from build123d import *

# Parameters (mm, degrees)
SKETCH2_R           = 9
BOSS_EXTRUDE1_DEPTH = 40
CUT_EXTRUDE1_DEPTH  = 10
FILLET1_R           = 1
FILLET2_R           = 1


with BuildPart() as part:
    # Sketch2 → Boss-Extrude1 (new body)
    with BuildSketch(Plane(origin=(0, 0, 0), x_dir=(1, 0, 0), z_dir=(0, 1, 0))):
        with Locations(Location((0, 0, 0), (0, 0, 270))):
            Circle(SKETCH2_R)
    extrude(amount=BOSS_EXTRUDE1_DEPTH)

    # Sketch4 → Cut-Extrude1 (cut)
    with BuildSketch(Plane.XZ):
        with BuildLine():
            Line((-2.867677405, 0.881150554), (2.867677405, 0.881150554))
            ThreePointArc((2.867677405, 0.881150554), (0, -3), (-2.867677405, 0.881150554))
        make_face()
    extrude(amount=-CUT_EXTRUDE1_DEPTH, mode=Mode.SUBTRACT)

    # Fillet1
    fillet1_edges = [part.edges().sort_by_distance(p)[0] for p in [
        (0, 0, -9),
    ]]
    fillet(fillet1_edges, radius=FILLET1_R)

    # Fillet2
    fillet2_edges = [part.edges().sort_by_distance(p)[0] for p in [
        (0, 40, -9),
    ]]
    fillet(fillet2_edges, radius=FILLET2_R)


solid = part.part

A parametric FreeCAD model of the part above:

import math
import FreeCAD as App
import Part
import Sketcher

V = App.Vector


def edges_at(feature, points):
    """Names of the edges that pass closest to the given points."""
    edges = feature.Shape.Edges
    near = lambda p: min(range(len(edges)), key=lambda i: edges[i].distToShape(Part.Vertex(*p))[0])
    return sorted({f"Edge{near(p) + 1}" for p in points})

doc = App.newDocument("Part")
body = doc.addObject("PartDesign::Body", "Body")

sketch1 = doc.addObject("Sketcher::SketchObject", "Sketch")
body.addObject(sketch1)
sketch1.AttachmentSupport = (doc.XZ_Plane, [""])
sketch1.MapMode = "FlatFace"
sketch1.addGeometry(Part.Circle(V(0, 0, 0), V(0, 0, 1), 9), False)
sketch1.addConstraint(Sketcher.Constraint("Coincident", 0, 3, -1, 1))
sketch1.addConstraint(Sketcher.Constraint("Diameter", 0, 18.0))
pad1 = doc.addObject("PartDesign::Pad", "Pad")
body.addObject(pad1)
pad1.Profile = sketch1
pad1.Length = 40
pad1.Reversed = True

sketch2 = doc.addObject("Sketcher::SketchObject", "Sketch001")
body.addObject(sketch2)
sketch2.AttachmentSupport = (doc.XZ_Plane, [""])
sketch2.MapMode = "FlatFace"
sketch2.addGeometry(Part.LineSegment(V(2.9, 0.9, 0), V(-2.9, 0.9, 0)), False)
sketch2.addGeometry(Part.ArcOfCircle(Part.Circle(V(0, 0, 0), V(0, 0, 1), 3), math.radians(163), math.radians(377)), False)
sketch2.addConstraint(Sketcher.Constraint("Coincident", 0, 1, 1, 2))
sketch2.addConstraint(Sketcher.Constraint("Coincident", 1, 1, 0, 2))
sketch2.addConstraint(Sketcher.Constraint("Horizontal", 0))
sketch2.addConstraint(Sketcher.Constraint("Coincident", 1, 3, -1, 1))
sketch2.addConstraint(Sketcher.Constraint("Radius", 1, 3.0))
sketch2.addConstraint(Sketcher.Constraint("DistanceX", 0, 2, 0, 1, 5.735355))
pocket1 = doc.addObject("PartDesign::Pocket", "Pocket")
body.addObject(pocket1)
pocket1.Profile = sketch2
pocket1.Length = 10
doc.recompute()

fillet = doc.addObject("PartDesign::Fillet", "Fillet")
body.addObject(fillet)
fillet.Base = (pocket1, edges_at(pocket1, [(0, 0, -9)]))
fillet.Radius = 1
doc.recompute()

fillet2 = doc.addObject("PartDesign::Fillet", "Fillet001")
body.addObject(fillet2)
fillet2.Base = (fillet, edges_at(fillet, [(0, 40, -9)]))
fillet2.Radius = 1

doc.recompute()
